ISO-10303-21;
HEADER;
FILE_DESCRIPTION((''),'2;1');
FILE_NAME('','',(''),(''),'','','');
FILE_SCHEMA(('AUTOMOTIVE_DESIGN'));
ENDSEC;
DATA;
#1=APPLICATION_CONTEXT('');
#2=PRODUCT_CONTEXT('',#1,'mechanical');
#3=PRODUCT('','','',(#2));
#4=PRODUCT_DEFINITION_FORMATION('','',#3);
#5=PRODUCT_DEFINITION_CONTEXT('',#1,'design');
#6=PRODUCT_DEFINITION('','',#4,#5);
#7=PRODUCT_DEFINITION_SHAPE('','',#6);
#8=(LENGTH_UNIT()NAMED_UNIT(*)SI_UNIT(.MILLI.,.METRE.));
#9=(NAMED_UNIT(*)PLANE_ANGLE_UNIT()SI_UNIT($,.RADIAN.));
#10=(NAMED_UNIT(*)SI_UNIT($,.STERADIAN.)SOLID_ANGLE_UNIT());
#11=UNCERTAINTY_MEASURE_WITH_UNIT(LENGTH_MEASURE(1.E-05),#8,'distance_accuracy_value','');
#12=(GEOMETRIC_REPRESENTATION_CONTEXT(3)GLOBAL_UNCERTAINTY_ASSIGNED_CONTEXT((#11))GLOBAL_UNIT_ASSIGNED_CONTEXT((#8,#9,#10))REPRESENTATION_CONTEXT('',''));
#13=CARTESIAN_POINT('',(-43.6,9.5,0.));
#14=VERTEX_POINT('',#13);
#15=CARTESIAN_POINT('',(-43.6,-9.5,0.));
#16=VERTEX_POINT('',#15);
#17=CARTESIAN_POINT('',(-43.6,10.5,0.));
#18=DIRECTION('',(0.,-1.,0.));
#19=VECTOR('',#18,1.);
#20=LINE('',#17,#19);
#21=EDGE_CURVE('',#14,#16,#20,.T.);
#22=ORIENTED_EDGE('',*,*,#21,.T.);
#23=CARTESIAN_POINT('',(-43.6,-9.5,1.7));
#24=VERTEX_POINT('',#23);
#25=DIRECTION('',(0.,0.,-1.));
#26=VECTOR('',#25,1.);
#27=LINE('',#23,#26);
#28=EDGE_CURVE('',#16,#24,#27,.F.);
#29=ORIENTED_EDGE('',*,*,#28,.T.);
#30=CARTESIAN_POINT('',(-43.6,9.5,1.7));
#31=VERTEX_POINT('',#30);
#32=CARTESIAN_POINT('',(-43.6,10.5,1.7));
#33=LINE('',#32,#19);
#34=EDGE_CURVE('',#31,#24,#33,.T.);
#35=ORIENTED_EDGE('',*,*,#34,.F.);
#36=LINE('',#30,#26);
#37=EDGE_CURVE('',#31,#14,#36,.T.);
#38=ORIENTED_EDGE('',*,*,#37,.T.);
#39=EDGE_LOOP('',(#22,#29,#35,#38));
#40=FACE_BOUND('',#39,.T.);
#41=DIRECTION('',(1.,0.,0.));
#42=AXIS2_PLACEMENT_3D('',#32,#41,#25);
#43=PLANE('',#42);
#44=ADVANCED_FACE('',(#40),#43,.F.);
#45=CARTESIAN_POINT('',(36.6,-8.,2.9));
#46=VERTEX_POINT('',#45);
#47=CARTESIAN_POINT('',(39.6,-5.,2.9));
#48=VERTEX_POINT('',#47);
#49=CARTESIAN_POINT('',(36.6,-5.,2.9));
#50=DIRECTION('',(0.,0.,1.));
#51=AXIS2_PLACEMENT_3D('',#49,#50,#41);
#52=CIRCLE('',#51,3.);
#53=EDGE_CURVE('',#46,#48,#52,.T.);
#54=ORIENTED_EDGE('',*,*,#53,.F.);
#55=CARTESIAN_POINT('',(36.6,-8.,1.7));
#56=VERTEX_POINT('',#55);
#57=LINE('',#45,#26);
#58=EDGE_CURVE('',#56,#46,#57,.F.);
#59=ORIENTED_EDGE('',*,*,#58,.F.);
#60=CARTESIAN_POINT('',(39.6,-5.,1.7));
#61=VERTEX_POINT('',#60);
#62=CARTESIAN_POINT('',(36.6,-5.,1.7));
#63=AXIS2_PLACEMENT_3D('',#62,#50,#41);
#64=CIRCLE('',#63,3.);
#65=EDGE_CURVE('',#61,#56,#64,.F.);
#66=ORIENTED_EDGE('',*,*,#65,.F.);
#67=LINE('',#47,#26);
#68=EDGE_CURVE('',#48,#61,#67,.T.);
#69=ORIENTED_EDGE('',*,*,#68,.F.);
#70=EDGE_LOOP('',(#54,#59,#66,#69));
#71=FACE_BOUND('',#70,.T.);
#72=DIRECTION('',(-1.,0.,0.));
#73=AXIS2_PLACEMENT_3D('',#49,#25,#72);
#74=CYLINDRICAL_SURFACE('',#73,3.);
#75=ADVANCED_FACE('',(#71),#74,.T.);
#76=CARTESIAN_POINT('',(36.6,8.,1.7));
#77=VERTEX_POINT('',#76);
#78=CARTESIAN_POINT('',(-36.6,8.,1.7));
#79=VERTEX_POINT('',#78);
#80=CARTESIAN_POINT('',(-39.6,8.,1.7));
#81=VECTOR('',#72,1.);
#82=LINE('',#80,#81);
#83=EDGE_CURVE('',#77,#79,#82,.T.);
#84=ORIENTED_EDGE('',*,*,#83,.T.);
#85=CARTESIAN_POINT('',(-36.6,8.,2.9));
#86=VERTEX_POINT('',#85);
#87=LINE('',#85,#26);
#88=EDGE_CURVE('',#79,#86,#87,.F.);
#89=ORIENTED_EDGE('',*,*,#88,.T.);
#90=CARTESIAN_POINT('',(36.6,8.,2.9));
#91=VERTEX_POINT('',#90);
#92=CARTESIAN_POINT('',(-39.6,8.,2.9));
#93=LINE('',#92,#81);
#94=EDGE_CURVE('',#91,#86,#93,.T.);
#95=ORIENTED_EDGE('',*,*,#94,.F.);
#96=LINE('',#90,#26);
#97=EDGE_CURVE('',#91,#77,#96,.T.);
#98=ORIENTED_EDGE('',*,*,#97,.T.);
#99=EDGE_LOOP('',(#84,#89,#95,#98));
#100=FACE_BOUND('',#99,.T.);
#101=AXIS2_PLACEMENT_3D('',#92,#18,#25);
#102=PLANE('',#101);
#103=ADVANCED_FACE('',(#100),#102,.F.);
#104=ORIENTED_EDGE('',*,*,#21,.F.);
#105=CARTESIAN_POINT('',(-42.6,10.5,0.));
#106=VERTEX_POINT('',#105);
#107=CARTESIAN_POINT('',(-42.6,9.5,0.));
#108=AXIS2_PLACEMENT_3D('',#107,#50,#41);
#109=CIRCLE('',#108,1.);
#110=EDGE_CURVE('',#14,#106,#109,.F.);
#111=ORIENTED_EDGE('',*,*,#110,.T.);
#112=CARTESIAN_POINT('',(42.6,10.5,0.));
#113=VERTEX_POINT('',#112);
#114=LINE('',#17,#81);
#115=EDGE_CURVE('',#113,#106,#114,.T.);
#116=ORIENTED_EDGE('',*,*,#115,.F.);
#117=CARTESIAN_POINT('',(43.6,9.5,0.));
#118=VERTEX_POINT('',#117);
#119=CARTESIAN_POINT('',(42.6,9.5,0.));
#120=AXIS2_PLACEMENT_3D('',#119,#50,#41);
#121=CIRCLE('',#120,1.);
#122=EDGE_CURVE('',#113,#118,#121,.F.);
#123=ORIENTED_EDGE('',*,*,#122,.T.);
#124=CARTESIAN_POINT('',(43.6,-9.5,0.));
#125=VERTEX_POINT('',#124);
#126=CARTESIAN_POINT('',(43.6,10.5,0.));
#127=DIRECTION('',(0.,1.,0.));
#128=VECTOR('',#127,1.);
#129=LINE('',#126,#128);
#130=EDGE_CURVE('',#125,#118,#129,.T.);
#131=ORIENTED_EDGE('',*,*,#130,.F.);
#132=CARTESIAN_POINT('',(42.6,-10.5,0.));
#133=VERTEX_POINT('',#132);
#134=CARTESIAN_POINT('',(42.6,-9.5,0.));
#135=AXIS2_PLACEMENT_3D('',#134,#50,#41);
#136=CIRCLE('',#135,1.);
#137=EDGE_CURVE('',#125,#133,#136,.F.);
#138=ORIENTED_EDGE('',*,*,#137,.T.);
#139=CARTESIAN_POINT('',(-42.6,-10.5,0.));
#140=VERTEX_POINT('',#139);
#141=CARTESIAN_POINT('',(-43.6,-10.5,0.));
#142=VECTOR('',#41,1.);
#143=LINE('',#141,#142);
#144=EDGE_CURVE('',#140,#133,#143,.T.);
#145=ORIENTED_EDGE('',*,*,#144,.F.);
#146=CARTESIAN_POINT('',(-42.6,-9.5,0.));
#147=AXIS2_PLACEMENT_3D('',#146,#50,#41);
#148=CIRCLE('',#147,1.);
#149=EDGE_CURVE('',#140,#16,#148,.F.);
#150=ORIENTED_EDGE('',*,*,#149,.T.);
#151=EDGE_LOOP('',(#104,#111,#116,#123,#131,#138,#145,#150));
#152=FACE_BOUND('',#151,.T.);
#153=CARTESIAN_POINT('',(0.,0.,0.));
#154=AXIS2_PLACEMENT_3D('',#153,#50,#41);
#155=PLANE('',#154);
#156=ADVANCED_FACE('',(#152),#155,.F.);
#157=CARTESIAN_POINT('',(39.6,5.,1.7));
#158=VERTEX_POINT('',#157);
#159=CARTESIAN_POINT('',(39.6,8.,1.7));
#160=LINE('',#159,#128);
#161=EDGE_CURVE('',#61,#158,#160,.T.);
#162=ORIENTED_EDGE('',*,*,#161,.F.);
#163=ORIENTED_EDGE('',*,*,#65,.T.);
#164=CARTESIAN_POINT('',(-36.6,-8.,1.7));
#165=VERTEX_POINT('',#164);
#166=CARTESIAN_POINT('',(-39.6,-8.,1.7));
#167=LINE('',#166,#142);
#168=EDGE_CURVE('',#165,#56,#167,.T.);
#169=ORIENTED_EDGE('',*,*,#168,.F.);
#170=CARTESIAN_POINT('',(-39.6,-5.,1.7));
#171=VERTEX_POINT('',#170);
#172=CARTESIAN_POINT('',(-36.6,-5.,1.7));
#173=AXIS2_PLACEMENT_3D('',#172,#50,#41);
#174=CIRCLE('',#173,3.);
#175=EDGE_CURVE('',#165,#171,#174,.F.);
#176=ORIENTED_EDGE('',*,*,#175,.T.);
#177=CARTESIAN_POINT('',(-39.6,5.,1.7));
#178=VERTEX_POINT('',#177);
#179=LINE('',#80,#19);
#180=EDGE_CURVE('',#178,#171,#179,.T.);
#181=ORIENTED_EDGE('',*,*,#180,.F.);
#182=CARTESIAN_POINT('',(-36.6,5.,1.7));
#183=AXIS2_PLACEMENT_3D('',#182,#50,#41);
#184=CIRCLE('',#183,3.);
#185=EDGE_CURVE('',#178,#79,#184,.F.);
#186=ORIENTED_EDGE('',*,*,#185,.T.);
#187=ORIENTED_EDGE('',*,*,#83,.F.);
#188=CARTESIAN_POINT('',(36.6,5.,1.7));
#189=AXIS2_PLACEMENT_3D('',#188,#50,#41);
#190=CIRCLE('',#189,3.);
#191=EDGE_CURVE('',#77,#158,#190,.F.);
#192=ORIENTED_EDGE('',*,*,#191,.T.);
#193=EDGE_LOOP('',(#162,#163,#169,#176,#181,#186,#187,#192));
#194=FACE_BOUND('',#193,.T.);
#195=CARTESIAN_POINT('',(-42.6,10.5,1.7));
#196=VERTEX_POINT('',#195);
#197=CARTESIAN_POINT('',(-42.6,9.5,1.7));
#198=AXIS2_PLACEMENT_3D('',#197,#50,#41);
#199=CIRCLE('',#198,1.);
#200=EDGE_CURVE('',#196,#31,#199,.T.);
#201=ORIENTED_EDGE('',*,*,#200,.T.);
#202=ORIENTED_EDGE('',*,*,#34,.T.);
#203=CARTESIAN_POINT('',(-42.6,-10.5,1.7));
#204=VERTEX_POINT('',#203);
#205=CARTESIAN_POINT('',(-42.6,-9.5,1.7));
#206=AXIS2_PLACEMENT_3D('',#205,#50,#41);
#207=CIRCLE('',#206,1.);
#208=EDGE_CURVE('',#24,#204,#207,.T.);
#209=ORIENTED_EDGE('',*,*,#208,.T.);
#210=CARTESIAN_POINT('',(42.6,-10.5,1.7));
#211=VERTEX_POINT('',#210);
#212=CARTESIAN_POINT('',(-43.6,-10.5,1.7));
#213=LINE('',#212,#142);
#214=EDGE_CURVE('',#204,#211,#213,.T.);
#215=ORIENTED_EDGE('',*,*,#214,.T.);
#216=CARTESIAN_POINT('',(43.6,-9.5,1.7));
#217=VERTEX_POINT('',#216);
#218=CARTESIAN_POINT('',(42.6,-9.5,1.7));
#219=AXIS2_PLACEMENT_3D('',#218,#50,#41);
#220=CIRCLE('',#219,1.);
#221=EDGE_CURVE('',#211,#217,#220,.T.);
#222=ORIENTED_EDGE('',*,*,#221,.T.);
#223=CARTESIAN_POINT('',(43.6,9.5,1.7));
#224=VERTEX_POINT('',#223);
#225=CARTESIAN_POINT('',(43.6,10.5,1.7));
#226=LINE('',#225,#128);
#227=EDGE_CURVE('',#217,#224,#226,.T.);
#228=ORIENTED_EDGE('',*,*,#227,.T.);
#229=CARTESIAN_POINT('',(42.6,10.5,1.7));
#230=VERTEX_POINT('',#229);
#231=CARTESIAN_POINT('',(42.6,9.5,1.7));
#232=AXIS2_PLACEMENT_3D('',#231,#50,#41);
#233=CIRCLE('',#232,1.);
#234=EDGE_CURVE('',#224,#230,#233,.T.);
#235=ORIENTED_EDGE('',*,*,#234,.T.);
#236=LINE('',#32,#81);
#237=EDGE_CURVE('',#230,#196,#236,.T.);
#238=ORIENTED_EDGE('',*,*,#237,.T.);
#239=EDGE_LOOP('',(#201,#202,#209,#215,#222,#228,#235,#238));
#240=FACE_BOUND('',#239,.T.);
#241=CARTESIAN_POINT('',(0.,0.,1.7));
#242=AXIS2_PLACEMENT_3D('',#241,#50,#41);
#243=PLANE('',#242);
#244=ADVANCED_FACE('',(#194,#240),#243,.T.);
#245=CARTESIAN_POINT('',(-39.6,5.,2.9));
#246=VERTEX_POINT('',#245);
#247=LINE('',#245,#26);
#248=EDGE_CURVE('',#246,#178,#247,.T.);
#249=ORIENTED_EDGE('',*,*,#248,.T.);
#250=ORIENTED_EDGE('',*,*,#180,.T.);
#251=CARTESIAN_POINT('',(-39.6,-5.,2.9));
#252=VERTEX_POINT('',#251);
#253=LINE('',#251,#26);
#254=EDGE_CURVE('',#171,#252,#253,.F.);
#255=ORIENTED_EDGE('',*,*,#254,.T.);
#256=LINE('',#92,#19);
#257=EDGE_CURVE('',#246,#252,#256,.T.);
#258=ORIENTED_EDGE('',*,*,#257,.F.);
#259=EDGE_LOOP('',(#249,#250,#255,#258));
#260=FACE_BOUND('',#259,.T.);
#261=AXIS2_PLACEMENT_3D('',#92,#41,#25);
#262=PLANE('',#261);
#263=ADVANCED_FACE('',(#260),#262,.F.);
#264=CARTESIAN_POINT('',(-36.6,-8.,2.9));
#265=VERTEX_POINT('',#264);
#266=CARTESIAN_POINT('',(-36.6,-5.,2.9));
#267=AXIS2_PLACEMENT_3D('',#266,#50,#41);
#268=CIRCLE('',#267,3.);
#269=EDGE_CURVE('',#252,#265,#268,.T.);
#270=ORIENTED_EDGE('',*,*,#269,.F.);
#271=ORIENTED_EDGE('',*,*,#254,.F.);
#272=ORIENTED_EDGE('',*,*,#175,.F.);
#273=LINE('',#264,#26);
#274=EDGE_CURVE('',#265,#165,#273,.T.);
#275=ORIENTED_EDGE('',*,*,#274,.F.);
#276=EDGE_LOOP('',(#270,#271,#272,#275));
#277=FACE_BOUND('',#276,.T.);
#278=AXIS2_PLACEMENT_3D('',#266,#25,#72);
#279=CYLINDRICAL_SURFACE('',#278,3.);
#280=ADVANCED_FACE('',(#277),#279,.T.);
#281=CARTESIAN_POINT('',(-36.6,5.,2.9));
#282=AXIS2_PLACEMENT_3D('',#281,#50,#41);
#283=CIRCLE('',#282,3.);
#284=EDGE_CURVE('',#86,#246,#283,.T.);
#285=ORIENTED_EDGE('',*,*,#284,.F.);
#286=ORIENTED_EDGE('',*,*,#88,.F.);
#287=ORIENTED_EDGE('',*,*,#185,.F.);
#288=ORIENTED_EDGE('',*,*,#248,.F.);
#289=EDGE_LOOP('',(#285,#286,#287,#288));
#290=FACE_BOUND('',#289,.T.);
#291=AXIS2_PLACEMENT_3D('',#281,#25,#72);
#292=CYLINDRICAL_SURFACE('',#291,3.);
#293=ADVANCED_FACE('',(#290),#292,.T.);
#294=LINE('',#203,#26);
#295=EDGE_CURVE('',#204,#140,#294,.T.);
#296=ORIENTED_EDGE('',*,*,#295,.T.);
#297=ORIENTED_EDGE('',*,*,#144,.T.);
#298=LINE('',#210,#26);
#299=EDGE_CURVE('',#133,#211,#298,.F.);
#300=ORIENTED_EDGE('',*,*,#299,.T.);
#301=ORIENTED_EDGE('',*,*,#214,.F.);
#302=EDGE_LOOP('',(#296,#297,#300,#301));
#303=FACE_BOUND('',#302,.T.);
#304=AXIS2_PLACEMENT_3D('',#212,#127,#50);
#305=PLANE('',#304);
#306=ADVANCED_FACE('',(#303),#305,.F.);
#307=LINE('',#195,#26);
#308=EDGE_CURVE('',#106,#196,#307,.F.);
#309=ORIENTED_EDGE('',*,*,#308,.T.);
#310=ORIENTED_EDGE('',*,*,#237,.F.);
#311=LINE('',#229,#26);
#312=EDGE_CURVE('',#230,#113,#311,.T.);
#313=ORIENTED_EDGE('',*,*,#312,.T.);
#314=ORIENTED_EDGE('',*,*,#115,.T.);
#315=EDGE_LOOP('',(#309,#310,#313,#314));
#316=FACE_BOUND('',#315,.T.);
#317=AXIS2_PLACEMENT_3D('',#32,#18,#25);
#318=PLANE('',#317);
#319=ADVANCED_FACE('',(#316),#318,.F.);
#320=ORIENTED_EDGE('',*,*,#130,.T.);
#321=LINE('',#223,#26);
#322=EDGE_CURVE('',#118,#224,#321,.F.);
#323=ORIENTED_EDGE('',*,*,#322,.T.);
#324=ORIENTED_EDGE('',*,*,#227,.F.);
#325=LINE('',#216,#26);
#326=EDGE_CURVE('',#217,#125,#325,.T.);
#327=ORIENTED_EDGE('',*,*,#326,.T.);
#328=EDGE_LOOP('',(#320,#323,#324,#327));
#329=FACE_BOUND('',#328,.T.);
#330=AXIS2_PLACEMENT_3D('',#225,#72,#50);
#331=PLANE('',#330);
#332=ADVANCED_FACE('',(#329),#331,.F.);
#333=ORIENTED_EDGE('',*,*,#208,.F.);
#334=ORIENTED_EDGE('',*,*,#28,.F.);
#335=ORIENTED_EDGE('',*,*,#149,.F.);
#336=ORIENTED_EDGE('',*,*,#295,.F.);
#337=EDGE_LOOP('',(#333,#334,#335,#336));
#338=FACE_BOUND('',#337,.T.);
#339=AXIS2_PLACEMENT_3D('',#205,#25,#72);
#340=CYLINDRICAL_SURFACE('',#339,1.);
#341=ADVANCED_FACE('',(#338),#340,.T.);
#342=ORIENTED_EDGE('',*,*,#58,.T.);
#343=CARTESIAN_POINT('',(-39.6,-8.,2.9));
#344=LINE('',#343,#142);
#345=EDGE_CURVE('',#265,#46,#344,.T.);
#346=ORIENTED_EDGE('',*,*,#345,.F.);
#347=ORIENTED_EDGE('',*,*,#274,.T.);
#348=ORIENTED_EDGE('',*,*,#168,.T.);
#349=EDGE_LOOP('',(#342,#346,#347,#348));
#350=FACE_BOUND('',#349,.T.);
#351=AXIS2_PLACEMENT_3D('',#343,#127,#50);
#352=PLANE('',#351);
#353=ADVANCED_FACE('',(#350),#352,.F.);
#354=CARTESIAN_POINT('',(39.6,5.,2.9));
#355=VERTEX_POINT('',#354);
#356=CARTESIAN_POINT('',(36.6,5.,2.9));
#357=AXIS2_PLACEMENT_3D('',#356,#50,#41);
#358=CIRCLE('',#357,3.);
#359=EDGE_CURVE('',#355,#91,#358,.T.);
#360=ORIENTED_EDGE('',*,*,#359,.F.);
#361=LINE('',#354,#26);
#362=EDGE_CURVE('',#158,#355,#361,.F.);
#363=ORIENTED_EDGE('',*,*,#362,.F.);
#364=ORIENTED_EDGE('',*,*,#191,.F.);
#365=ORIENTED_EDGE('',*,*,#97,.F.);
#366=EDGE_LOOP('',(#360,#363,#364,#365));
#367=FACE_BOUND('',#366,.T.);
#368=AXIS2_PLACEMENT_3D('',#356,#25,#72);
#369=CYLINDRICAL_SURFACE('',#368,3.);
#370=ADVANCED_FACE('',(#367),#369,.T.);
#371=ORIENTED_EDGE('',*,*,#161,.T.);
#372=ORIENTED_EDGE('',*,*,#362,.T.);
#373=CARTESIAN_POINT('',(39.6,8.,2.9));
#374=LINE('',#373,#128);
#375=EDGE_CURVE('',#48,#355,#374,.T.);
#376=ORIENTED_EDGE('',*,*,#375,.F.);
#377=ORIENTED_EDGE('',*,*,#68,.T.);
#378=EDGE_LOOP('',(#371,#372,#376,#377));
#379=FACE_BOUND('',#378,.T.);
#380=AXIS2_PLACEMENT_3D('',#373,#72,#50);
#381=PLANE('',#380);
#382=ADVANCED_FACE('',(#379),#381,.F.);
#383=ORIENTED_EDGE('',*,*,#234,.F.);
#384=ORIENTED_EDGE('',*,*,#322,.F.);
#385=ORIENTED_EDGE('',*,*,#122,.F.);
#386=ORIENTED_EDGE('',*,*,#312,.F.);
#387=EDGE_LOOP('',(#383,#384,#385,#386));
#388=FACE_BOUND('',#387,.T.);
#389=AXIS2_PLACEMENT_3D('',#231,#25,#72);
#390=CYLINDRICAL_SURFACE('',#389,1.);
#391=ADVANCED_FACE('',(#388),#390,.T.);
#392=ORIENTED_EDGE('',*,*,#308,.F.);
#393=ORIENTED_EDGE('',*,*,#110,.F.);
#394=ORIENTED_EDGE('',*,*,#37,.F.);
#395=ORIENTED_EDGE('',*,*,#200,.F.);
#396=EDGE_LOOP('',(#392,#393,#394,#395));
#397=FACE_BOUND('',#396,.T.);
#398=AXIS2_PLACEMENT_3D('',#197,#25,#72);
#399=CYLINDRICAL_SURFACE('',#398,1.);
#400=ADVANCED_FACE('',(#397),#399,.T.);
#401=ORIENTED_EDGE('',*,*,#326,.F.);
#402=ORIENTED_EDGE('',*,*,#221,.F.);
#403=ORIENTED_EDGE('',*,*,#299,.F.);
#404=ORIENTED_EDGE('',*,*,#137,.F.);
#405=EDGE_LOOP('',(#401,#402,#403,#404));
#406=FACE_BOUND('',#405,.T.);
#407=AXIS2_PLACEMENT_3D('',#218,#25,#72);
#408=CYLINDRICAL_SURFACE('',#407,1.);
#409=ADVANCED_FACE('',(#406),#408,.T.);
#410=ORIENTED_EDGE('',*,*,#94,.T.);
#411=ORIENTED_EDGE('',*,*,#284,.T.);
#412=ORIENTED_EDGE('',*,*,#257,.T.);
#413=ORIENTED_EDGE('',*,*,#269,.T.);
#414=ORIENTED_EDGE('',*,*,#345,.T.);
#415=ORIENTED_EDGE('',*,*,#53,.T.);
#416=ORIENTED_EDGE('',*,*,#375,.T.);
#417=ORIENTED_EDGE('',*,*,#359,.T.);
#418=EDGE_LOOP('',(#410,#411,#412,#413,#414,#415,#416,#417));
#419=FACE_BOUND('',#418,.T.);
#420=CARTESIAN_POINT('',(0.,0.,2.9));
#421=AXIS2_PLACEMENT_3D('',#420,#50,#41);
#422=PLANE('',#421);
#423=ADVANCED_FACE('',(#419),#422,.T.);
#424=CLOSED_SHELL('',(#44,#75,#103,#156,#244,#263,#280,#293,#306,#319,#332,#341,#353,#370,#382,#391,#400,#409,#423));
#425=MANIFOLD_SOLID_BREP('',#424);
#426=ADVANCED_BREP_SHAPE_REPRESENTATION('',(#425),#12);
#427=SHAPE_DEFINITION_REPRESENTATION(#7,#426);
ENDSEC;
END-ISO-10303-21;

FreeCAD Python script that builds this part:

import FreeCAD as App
import Part
import Sketcher


def edges_at(feature, points):
    """Names of the edges that pass closest to the given points."""
    edges = feature.Shape.Edges
    near = lambda p: min(range(len(edges)), key=lambda i: edges[i].distToShape(Part.Vertex(*p))[0])
    return sorted({f"Edge{near(p) + 1}" for p in points})


def add_polygon(sketch, points):
    """Adds a closed chain of lines whose ends are joined by coincident constraints."""
    first, n = sketch.GeometryCount, len(points)
    for a, b in zip(points, points[1:] + points[:1]):
        sketch.addGeometry(Part.LineSegment(App.Vector(*a, 0), App.Vector(*b, 0)), False)
    for i in range(n):
        sketch.addConstraint(Sketcher.Constraint("Coincident", first + i, 2, first + (i + 1) % n, 1))

doc = App.newDocument("Part")
params = doc.addObject("Spreadsheet::Sheet", "Params")
for row, (alias, value) in enumerate([
    ("sketch1_height", "21 mm"),
    ("sketch1_width", "87.2 mm"),
    ("pad1_length", "1.7 mm"),
    ("sketch2_height", "16 mm"),
    ("sketch2_width", "79.2 mm"),
    ("pad2_length", "1.2 mm"),
    ("fillet_radius", "3 mm"),
    ("fillet2_radius", "1 mm"),
], start=1):
    params.set(f"A{row}", alias)
    params.set(f"B{row}", "=" + value)
    params.setAlias(f"B{row}", alias)

body = doc.addObject("PartDesign::Body", "Body")

sketch1 = body.newObject("Sketcher::SketchObject", "Sketch")
sketch1.AttachmentSupport = (doc.getObject("XY_Plane"), [""])
sketch1.MapMode = "FlatFace"
add_polygon(sketch1, [(-43.6, 10.5), (-43.6, -10.5), (43.6, -10.5), (43.6, 10.5)])
sketch1.addConstraint(Sketcher.Constraint("Vertical", 0))
sketch1.addConstraint(Sketcher.Constraint("Horizontal", 1))
sketch1.addConstraint(Sketcher.Constraint("Vertical", 2))
sketch1.addConstraint(Sketcher.Constraint("Horizontal", 3))
sketch1.addConstraint(Sketcher.Constraint("Symmetric", 0, 2, 2, 2, -1, 1))
sketch1.addConstraint(Sketcher.Constraint("DistanceY", 0, 2, 0, 1, 21.0))
sketch1.addConstraint(Sketcher.Constraint("DistanceX", 1, 1, 1, 2, 87.2))
sketch1.setExpression("Constraints[9]", "Params.sketch1_height")
sketch1.setExpression("Constraints[10]", "Params.sketch1_width")
pad1 = body.newObject("PartDesign::Pad", "Pad")
pad1.Profile = sketch1
pad1.setExpression("Length", "Params.pad1_length")

sketch2 = body.newObject("Sketcher::SketchObject", "Sketch001")
sketch2.AttachmentSupport = (doc.getObject("XY_Plane"), [""])
sketch2.MapMode = "FlatFace"
sketch2.AttachmentOffset = App.Placement(App.Vector(0, 0, 1.7), App.Rotation())
add_polygon(sketch2, [(-39.6, 8), (-39.6, -8), (39.6, -8), (39.6, 8)])
sketch2.addConstraint(Sketcher.Constraint("Vertical", 0))
sketch2.addConstraint(Sketcher.Constraint("Horizontal", 1))
sketch2.addConstraint(Sketcher.Constraint("Vertical", 2))
sketch2.addConstraint(Sketcher.Constraint("Horizontal", 3))
sketch2.addConstraint(Sketcher.Constraint("Symmetric", 0, 2, 2, 2, -1, 1))
sketch2.addConstraint(Sketcher.Constraint("DistanceY", 0, 2, 0, 1, 16.0))
sketch2.addConstraint(Sketcher.Constraint("DistanceX", 1, 1, 1, 2, 79.2))
sketch2.setExpression("Constraints[9]", "Params.sketch2_height")
sketch2.setExpression("Constraints[10]", "Params.sketch2_width")
pad2 = body.newObject("PartDesign::Pad", "Pad001")
pad2.Profile = sketch2
pad2.setExpression("Length", "Params.pad2_length")
doc.recompute()

fillet = body.newObject("PartDesign::Fillet", "Fillet")
fillet.Base = (pad2, edges_at(pad2, [
    (39.6, -8, 2.3),
    (39.6, 8, 2.3),
    (-39.6, 8, 2.3),
    (-39.6, -8, 2.3),
]))
fillet.setExpression("Radius", "Params.fillet_radius")
doc.recompute()

fillet2 = body.newObject("PartDesign::Fillet", "Fillet001")
fillet2.Base = (fillet, edges_at(fillet, [
    (43.6, -10.5, 0.85),
    (-43.6, -10.5, 0.85),
    (-43.6, 10.5, 0.85),
    (43.6, 10.5, 0.85),
]))
fillet2.setExpression("Radius", "Params.fillet2_radius")

doc.recompute()
